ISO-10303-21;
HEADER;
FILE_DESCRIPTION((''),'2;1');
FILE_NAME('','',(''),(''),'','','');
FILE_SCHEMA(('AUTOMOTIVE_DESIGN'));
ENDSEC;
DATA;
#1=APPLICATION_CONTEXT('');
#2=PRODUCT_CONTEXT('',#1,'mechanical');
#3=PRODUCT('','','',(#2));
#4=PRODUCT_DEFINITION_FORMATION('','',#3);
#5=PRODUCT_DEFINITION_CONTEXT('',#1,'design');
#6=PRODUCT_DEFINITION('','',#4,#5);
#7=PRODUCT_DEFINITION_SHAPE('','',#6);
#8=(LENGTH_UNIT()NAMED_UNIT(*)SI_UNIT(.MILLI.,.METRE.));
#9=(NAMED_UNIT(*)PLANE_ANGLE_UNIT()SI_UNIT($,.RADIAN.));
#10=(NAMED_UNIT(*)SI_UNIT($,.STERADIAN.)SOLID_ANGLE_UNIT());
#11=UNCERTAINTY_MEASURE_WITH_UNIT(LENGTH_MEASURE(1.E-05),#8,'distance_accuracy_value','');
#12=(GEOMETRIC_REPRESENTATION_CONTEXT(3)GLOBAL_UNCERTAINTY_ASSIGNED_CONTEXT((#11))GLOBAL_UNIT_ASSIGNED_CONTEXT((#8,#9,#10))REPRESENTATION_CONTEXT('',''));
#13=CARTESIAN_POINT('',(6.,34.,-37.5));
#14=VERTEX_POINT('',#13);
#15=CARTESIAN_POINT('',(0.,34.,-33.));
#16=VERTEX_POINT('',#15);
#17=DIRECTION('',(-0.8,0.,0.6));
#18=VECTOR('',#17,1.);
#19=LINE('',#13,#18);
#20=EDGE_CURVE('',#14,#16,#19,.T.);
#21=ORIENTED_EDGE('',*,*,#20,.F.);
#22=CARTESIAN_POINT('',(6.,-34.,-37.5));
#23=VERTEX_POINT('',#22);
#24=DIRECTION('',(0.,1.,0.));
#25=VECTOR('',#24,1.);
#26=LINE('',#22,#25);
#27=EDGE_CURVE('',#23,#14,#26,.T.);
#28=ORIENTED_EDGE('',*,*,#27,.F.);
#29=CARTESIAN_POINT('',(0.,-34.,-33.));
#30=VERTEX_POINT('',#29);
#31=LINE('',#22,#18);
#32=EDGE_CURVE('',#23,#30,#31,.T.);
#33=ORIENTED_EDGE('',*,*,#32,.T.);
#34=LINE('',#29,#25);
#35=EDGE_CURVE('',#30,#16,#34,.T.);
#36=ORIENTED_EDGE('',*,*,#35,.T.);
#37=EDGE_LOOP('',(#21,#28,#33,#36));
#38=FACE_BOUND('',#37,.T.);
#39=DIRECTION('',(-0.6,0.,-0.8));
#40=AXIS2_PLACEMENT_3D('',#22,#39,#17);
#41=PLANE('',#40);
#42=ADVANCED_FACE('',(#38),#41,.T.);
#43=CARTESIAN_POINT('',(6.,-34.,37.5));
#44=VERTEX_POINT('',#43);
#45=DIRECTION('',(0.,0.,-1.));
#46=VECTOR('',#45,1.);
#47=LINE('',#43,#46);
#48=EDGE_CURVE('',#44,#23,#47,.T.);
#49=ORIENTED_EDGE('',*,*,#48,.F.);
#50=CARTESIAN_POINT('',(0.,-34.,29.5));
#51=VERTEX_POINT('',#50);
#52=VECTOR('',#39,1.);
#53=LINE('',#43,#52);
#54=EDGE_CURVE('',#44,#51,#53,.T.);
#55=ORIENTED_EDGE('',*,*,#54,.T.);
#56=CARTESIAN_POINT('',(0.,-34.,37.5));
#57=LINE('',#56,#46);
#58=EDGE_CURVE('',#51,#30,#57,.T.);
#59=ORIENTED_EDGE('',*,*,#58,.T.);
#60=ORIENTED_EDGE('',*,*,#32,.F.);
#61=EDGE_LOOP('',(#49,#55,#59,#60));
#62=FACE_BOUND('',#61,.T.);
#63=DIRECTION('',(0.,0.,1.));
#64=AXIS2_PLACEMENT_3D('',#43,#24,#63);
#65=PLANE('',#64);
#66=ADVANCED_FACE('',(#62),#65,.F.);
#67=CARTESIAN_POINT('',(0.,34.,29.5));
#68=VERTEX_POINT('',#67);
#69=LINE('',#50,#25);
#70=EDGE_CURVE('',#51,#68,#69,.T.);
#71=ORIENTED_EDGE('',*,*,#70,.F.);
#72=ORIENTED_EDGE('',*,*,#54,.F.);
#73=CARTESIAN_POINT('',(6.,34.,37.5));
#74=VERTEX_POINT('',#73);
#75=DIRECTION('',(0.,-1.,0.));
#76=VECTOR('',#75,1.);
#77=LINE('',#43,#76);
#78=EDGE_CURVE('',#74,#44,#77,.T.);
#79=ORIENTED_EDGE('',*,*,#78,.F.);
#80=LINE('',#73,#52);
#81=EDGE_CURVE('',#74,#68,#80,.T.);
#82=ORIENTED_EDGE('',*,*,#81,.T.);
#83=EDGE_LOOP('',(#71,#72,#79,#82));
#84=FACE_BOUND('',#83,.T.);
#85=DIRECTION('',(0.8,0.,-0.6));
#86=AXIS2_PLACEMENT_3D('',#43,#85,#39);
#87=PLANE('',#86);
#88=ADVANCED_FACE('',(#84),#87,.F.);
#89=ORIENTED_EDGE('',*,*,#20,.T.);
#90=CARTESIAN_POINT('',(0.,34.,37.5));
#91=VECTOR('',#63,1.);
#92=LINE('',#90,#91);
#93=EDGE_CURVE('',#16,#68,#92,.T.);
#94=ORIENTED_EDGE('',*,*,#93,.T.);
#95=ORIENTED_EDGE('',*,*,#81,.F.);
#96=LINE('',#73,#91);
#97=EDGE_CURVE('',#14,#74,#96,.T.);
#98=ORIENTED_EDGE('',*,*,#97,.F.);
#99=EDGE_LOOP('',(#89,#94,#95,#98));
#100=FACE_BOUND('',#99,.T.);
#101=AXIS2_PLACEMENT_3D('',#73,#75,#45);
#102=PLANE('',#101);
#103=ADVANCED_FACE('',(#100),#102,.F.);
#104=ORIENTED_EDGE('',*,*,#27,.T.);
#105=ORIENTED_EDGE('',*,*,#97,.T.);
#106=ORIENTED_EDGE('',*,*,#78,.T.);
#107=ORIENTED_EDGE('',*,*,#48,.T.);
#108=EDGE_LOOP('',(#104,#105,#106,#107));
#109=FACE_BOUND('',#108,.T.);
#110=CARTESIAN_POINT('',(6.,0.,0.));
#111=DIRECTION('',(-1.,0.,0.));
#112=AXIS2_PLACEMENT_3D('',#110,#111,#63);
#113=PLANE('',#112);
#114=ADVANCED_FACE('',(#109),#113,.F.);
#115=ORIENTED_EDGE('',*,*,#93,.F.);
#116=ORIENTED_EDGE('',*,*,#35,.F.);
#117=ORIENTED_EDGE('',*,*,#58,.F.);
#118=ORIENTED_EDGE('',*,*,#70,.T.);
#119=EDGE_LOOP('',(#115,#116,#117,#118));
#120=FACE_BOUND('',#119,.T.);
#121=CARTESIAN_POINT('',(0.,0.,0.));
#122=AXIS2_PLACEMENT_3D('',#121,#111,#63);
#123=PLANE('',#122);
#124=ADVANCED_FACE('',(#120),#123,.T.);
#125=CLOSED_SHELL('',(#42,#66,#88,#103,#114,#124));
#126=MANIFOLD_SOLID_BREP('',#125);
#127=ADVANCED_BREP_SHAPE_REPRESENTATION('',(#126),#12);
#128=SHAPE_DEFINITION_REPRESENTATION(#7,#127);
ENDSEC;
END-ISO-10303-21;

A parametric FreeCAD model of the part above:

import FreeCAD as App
import Part
import Sketcher
from FreeCAD import Vector
Q = App.Units.Quantity

doc = App.newDocument("Part")
params = doc.addObject("Spreadsheet::Sheet", "Params")
for row, (alias, value) in enumerate([
    ("sketch1_width", "68 mm"),
    ("sketch1_height", "75 mm"),
    ("pad1_length", "6 mm"),
    ("sketch2_width", "6 mm"),
    ("sketch2_height", "4.5 mm"),
    ("sketch3_width", "6 mm"),
    ("sketch3_height", "8 mm"),
], start=1):
    params.set(f"A{row}", alias)
    params.set(f"B{row}", "=" + value)
    params.setAlias(f"B{row}", alias)

body = doc.addObject("PartDesign::Body", "Body")

# Sketch on YZ plane
sketch1 = body.newObject("Sketcher::SketchObject", "Sketch")
sketch1.AttachmentSupport = (doc.getObject("YZ_Plane"), [""])
sketch1.MapMode = "FlatFace"
sketch1.addGeometry(Part.LineSegment(Vector(34, 38, 0), Vector(-34, 38, 0)), False)
sketch1.addGeometry(Part.LineSegment(Vector(-34, 38, 0), Vector(-34, -38, 0)), False)
sketch1.addGeometry(Part.LineSegment(Vector(-34, -38, 0), Vector(34, -38, 0)), False)
sketch1.addGeometry(Part.LineSegment(Vector(34, -38, 0), Vector(34, 38, 0)), False)
sketch1.addConstraint(Sketcher.Constraint("Coincident", 0, 2, 1, 1))
sketch1.addConstraint(Sketcher.Constraint("Coincident", 1, 2, 2, 1))
sketch1.addConstraint(Sketcher.Constraint("Coincident", 2, 2, 3, 1))
sketch1.addConstraint(Sketcher.Constraint("Coincident", 3, 2, 0, 1))
sketch1.addConstraint(Sketcher.Constraint("Horizontal", 0))
sketch1.addConstraint(Sketcher.Constraint("Vertical", 1))
sketch1.addConstraint(Sketcher.Constraint("Horizontal", 2))
sketch1.addConstraint(Sketcher.Constraint("Vertical", 3))
sketch1.addConstraint(Sketcher.Constraint("Symmetric", 0, 2, 2, 2, -1, 1))
sketch1.addConstraint(Sketcher.Constraint("DistanceX", 0, 2, 0, 1, Q("68 mm")))
sketch1.addConstraint(Sketcher.Constraint("DistanceY", 1, 2, 1, 1, Q("75 mm")))
sketch1.setExpression("Constraints[9]", "Params.sketch1_width")
sketch1.setExpression("Constraints[10]", "Params.sketch1_height")
pad1 = body.newObject("PartDesign::Pad", "Pad")
pad1.Profile = sketch1
pad1.setExpression("Length", "Params.pad1_length")

# Sketch on XZ plane
sketch2 = body.newObject("Sketcher::SketchObject", "Sketch001")
sketch2.AttachmentSupport = (doc.getObject("XZ_Plane"), [""])
sketch2.MapMode = "FlatFace"
sketch2.AttachmentOffset = App.Placement(Vector(0, 0, -34), App.Rotation())
sketch2.addGeometry(Part.LineSegment(Vector(0, -33, 0), Vector(6, -37.5, 0)), False)
sketch2.addGeometry(Part.LineSegment(Vector(6, -37.5, 0), Vector(0, -37.5, 0)), False)
sketch2.addGeometry(Part.LineSegment(Vector(0, -37.5, 0), Vector(0, -33, 0)), False)
sketch2.addConstraint(Sketcher.Constraint("Coincident", 0, 2, 1, 1))
sketch2.addConstraint(Sketcher.Constraint("Coincident", 1, 2, 2, 1))
sketch2.addConstraint(Sketcher.Constraint("Coincident", 2, 2, 0, 1))
sketch2.addConstraint(Sketcher.Constraint("Horizontal", 1))
sketch2.addConstraint(Sketcher.Constraint("Vertical", 2))
sketch2.addConstraint(Sketcher.Constraint("PointOnObject", 1, 2, -2))
sketch2.addConstraint(Sketcher.Constraint("DistanceX", 1, 2, 1, 1, Q("6 mm")))
sketch2.addConstraint(Sketcher.Constraint("DistanceY", 2, 1, 2, 2, Q("4.5 mm")))
sketch2.addConstraint(Sketcher.Constraint("DistanceY", 2, 2, -1, 1, Q("33 mm")))
sketch2.setExpression("Constraints[6]", "Params.sketch2_width")
sketch2.setExpression("Constraints[7]", "Params.sketch2_height")
pocket1 = body.newObject("PartDesign::Pocket", "Pocket")
pocket1.Profile = sketch2
pocket1.Type = "ThroughAll"
pocket1.Reversed = True

# Sketch on XZ plane
sketch3 = body.newObject("Sketcher::SketchObject", "Sketch002")
sketch3.AttachmentSupport = (doc.getObject("XZ_Plane"), [""])
sketch3.MapMode = "FlatFace"
sketch3.AttachmentOffset = App.Placement(Vector(0, 0, -34), App.Rotation())
sketch3.addGeometry(Part.LineSegment(Vector(6, 38, 0), Vector(0, 30, 0)), False)
sketch3.addGeometry(Part.LineSegment(Vector(0, 30, 0), Vector(0, 38, 0)), False)
sketch3.addGeometry(Part.LineSegment(Vector(0, 38, 0), Vector(6, 38, 0)), False)
sketch3.addConstraint(Sketcher.Constraint("Coincident", 0, 2, 1, 1))
sketch3.addConstraint(Sketcher.Constraint("Coincident", 1, 2, 2, 1))
sketch3.addConstraint(Sketcher.Constraint("Coincident", 2, 2, 0, 1))
sketch3.addConstraint(Sketcher.Constraint("Vertical", 1))
sketch3.addConstraint(Sketcher.Constraint("Horizontal", 2))
sketch3.addConstraint(Sketcher.Constraint("PointOnObject", 0, 2, -2))
sketch3.addConstraint(Sketcher.Constraint("DistanceX", 2, 1, 2, 2, Q("6 mm")))
sketch3.addConstraint(Sketcher.Constraint("DistanceY", 1, 1, 1, 2, Q("8 mm")))
sketch3.addConstraint(Sketcher.Constraint("DistanceY", -1, 1, 0, 2, Q("29.5 mm")))
sketch3.setExpression("Constraints[6]", "Params.sketch3_width")
sketch3.setExpression("Constraints[7]", "Params.sketch3_height")
pocket2 = body.newObject("PartDesign::Pocket", "Pocket001")
pocket2.Profile = sketch3
pocket2.Type = "ThroughAll"
pocket2.Reversed = True

doc.recompute()
